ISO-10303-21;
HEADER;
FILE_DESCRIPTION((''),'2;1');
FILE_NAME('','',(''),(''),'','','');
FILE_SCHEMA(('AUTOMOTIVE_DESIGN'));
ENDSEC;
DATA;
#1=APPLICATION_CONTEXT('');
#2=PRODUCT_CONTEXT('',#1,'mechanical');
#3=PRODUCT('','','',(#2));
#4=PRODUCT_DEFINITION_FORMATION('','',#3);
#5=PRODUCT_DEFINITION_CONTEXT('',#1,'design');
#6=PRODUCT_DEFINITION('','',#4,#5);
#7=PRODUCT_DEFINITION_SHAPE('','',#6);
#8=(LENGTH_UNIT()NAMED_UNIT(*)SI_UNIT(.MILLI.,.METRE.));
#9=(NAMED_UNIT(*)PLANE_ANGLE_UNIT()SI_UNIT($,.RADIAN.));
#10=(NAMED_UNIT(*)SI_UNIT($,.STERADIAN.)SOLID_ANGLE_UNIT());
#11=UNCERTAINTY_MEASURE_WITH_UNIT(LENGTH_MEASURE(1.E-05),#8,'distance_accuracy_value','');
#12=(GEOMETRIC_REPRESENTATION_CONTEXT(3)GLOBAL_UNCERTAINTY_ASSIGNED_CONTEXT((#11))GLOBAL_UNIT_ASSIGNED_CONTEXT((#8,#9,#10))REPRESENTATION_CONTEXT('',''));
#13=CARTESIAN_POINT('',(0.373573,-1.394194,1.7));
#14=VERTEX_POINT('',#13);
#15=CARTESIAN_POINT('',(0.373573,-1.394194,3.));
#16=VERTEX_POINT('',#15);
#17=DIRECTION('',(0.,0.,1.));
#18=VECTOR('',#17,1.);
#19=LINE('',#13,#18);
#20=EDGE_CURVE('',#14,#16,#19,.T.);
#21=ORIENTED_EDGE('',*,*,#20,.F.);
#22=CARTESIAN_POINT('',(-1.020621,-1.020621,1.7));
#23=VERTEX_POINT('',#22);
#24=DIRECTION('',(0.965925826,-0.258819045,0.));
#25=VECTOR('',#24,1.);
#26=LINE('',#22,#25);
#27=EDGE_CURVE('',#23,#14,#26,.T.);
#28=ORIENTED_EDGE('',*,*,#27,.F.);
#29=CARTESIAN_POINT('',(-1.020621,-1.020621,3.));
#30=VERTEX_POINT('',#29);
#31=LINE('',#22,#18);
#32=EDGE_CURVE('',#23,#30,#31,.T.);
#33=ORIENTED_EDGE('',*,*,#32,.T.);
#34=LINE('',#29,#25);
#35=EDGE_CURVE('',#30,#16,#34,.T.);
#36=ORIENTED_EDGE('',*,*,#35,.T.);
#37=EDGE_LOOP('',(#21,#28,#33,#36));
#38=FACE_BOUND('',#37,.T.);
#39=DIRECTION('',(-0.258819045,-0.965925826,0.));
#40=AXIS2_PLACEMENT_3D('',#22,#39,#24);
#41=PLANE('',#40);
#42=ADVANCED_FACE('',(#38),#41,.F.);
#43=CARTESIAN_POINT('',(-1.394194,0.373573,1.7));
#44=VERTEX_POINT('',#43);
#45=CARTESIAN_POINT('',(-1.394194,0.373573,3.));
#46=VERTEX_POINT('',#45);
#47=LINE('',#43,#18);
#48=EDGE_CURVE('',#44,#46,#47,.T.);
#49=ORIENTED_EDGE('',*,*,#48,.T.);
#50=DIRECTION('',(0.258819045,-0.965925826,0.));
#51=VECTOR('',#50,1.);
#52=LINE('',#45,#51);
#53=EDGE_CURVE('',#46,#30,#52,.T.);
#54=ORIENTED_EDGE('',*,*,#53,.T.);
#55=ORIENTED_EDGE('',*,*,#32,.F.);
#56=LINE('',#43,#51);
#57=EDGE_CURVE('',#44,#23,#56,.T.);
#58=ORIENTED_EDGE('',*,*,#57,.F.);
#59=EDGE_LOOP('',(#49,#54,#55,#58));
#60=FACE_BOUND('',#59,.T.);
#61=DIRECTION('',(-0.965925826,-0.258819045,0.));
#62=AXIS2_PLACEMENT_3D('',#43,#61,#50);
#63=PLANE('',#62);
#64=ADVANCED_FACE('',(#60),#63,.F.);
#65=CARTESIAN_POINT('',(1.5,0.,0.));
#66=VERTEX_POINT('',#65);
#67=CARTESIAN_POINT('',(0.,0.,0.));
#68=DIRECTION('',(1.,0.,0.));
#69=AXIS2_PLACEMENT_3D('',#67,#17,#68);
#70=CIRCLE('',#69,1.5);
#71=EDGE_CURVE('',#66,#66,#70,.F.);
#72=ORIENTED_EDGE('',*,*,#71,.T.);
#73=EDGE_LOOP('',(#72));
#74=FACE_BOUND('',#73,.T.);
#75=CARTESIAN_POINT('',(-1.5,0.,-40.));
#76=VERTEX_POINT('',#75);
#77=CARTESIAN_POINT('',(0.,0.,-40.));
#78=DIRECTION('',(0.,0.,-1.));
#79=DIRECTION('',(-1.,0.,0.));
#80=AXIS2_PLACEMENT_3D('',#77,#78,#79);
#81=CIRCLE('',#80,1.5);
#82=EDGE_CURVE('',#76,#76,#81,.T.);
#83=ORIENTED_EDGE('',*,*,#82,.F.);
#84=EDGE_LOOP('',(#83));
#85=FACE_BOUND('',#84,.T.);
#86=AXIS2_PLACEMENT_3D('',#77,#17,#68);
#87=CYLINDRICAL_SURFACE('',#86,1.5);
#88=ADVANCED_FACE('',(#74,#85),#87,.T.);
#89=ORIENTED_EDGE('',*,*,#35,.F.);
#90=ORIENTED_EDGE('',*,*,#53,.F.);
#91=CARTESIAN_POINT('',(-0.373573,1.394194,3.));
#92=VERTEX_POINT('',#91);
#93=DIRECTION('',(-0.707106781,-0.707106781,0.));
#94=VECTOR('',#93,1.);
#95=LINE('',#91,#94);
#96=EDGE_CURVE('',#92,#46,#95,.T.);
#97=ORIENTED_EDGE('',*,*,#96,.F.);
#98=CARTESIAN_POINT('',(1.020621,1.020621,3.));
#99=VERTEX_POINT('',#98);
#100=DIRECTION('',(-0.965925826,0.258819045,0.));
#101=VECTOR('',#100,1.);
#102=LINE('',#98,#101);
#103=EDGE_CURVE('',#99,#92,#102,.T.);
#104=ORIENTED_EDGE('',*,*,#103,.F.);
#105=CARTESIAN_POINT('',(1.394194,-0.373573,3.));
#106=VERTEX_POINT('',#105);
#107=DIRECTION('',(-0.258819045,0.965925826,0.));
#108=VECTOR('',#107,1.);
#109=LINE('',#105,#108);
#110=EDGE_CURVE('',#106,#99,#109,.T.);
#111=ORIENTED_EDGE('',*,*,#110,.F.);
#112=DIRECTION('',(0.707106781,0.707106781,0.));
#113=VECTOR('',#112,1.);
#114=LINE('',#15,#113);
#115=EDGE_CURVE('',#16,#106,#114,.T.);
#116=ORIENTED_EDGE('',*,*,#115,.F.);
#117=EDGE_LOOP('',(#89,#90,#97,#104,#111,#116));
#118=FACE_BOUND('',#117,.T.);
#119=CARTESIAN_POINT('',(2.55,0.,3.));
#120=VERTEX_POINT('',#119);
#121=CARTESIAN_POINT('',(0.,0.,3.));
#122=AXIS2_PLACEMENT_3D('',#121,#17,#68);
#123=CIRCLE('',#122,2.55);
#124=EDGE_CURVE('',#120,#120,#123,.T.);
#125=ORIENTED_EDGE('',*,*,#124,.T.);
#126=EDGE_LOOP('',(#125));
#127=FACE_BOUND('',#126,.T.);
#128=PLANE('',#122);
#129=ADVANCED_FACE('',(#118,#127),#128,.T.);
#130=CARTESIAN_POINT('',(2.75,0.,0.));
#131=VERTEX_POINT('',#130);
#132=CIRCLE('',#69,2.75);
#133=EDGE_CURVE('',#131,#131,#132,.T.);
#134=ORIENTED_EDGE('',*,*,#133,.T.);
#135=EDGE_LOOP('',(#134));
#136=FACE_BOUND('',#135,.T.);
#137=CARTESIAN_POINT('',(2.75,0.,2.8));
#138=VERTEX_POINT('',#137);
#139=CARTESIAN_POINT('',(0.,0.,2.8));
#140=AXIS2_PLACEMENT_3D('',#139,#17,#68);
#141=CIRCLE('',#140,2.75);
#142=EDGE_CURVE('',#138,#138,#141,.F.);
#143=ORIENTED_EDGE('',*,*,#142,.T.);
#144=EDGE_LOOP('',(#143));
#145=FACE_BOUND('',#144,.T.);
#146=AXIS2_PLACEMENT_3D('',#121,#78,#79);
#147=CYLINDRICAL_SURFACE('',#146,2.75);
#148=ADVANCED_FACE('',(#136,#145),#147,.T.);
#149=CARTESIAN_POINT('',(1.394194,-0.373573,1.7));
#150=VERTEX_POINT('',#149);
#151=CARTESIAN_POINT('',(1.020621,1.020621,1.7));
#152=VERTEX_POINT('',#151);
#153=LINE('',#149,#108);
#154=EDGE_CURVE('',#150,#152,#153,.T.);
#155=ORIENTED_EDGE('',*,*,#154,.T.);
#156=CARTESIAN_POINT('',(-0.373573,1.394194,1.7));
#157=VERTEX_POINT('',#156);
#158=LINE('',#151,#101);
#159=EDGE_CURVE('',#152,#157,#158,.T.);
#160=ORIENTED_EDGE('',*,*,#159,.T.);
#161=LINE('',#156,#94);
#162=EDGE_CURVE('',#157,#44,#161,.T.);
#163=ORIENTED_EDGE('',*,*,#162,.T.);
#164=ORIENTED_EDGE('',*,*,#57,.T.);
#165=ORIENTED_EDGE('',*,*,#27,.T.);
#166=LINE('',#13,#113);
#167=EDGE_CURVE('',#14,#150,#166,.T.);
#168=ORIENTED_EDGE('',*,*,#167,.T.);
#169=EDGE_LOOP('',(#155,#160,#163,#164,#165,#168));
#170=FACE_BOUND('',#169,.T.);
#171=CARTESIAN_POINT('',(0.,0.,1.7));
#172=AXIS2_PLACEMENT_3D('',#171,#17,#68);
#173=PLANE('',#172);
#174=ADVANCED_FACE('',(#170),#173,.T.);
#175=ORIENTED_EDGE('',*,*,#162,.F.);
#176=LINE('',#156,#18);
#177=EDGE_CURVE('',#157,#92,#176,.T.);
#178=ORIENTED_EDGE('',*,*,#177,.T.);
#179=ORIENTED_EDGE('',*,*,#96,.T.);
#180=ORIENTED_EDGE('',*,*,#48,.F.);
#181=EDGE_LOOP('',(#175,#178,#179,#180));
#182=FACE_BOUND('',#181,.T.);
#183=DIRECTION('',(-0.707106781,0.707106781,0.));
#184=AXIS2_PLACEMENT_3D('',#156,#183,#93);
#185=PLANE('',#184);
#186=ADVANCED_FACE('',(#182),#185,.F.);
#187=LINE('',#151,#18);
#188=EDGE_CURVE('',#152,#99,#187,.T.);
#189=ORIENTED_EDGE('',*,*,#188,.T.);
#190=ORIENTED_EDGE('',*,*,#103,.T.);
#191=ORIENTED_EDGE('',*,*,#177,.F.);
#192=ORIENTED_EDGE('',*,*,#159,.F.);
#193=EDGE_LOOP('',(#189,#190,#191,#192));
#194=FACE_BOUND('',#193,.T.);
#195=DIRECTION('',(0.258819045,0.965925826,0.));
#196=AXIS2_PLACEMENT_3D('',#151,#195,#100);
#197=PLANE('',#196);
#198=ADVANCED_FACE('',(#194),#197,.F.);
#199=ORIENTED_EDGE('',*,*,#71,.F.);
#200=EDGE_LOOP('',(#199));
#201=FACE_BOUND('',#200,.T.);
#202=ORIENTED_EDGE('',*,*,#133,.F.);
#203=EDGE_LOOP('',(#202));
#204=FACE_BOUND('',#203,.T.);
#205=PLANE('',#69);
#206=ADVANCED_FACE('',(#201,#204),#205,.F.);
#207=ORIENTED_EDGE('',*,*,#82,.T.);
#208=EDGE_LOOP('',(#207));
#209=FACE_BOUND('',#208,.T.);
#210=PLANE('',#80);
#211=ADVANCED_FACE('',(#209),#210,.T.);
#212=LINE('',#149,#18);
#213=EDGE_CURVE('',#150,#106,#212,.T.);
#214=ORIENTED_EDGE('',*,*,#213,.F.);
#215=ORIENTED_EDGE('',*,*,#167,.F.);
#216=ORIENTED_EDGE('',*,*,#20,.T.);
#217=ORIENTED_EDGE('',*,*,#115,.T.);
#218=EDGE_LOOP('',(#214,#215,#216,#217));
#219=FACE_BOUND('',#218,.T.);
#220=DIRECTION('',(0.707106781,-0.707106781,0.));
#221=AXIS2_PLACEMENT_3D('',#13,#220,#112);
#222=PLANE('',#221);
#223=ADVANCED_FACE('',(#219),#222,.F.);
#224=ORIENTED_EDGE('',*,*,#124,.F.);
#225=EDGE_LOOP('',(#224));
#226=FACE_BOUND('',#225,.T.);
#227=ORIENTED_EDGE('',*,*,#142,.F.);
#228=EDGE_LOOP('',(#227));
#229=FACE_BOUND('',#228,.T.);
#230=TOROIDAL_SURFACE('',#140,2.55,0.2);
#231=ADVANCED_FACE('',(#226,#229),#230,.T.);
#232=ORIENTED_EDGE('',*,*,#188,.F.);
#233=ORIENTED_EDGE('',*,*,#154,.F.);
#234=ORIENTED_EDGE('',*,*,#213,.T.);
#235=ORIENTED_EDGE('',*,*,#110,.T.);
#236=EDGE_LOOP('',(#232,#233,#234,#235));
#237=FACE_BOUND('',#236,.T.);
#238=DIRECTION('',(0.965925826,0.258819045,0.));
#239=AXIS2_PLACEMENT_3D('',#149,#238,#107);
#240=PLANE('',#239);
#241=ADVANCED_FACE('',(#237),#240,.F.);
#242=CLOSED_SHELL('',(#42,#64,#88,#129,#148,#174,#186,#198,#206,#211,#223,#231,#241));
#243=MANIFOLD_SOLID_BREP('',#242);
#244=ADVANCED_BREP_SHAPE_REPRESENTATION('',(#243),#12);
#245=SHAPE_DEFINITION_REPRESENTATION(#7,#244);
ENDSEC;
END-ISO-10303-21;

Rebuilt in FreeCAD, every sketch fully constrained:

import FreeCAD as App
import Part
import Sketcher
Q = App.Units.Quantity


def edges_at(feature, points):
    """Names of the edges that pass closest to the given points."""
    edges = feature.Shape.Edges
    near = lambda p: min(range(len(edges)), key=lambda i: edges[i].distToShape(Part.Vertex(*p))[0])
    return sorted({f"Edge{near(p) + 1}" for p in points})


def add_polygon(sketch, points):
    """Adds a closed chain of lines whose ends are joined by coincident constraints."""
    first, n = sketch.GeometryCount, len(points)
    for a, b in zip(points, points[1:] + points[:1]):
        sketch.addGeometry(Part.LineSegment(App.Vector(*a, 0), App.Vector(*b, 0)), False)
    for i in range(n):
        sketch.addConstraint(Sketcher.Constraint("Coincident", first + i, 2, first + (i + 1) % n, 1))

doc = App.newDocument("Part")
body = doc.addObject("PartDesign::Body", "Body")

sketch1 = body.newObject("Sketcher::SketchObject", "Sketch")
sketch1.AttachmentSupport = (doc.getObject("XY_Plane"), [""])
sketch1.MapMode = "FlatFace"
sketch1.addGeometry(Part.Circle(App.Vector(0, 0, 0), App.Vector(0, 0, 1), 2.8), False)
sketch1.addConstraint([
    Sketcher.Constraint("Coincident", 0, 3, -1, 1),
    Sketcher.Constraint("Diameter", 0, 5.5),
])
pad1 = body.newObject("PartDesign::Pad", "Pad")
pad1.Profile = sketch1
pad1.Length = 3

sketch2 = body.newObject("Sketcher::SketchObject", "Sketch001")
sketch2.AttachmentSupport = (doc.getObject("XY_Plane"), [""])
sketch2.MapMode = "FlatFace"
sketch2.AttachmentOffset = App.Placement(App.Vector(0, 0, 3), App.Rotation())
add_polygon(sketch2, [(-1, -1), (0.4, -1.4), (1.4, -0.4), (1, 1), (-0.4, 1.4), (-1.4, 0.4)])
sketch2.addConstraint([
    Sketcher.Constraint("Symmetric", 0, 2, 3, 2, -1, 1),
    Sketcher.Constraint("Symmetric", 1, 2, 4, 2, -1, 1),
    Sketcher.Constraint("Symmetric", 2, 2, 5, 2, -1, 1),
    Sketcher.Constraint("Equal", 0, 1),
    Sketcher.Constraint("Equal", 1, 2),
    Sketcher.Constraint("Angle", 0, Q("-15 deg")),
    Sketcher.Constraint("Angle", 1, Q("45 deg")),
    Sketcher.Constraint("Angle", 2, Q("105 deg")),
    Sketcher.Constraint("DistanceX", -1, 1, 2, 2, 1.020621),
])
pocket1 = body.newObject("PartDesign::Pocket", "Pocket")
pocket1.Profile = sketch2
pocket1.Length = 1.3

sketch3 = body.newObject("Sketcher::SketchObject", "Sketch002")
sketch3.AttachmentSupport = (doc.getObject("XY_Plane"), [""])
sketch3.MapMode = "FlatFace"
sketch3.addGeometry(Part.Circle(App.Vector(0, 0, 0), App.Vector(0, 0, 1), 1.5), False)
sketch3.addConstraint([
    Sketcher.Constraint("Coincident", 0, 3, -1, 1),
    Sketcher.Constraint("Diameter", 0, 3.0),
])
pad2 = body.newObject("PartDesign::Pad", "Pad001")
pad2.Profile = sketch3
pad2.Length = 40
pad2.Reversed = True
doc.recompute()

fillet = body.newObject("PartDesign::Fillet", "Fillet")
fillet.Base = (pad2, edges_at(pad2, [(-2.75, 0, 3)]))
fillet.Radius = 0.2

doc.recompute()
